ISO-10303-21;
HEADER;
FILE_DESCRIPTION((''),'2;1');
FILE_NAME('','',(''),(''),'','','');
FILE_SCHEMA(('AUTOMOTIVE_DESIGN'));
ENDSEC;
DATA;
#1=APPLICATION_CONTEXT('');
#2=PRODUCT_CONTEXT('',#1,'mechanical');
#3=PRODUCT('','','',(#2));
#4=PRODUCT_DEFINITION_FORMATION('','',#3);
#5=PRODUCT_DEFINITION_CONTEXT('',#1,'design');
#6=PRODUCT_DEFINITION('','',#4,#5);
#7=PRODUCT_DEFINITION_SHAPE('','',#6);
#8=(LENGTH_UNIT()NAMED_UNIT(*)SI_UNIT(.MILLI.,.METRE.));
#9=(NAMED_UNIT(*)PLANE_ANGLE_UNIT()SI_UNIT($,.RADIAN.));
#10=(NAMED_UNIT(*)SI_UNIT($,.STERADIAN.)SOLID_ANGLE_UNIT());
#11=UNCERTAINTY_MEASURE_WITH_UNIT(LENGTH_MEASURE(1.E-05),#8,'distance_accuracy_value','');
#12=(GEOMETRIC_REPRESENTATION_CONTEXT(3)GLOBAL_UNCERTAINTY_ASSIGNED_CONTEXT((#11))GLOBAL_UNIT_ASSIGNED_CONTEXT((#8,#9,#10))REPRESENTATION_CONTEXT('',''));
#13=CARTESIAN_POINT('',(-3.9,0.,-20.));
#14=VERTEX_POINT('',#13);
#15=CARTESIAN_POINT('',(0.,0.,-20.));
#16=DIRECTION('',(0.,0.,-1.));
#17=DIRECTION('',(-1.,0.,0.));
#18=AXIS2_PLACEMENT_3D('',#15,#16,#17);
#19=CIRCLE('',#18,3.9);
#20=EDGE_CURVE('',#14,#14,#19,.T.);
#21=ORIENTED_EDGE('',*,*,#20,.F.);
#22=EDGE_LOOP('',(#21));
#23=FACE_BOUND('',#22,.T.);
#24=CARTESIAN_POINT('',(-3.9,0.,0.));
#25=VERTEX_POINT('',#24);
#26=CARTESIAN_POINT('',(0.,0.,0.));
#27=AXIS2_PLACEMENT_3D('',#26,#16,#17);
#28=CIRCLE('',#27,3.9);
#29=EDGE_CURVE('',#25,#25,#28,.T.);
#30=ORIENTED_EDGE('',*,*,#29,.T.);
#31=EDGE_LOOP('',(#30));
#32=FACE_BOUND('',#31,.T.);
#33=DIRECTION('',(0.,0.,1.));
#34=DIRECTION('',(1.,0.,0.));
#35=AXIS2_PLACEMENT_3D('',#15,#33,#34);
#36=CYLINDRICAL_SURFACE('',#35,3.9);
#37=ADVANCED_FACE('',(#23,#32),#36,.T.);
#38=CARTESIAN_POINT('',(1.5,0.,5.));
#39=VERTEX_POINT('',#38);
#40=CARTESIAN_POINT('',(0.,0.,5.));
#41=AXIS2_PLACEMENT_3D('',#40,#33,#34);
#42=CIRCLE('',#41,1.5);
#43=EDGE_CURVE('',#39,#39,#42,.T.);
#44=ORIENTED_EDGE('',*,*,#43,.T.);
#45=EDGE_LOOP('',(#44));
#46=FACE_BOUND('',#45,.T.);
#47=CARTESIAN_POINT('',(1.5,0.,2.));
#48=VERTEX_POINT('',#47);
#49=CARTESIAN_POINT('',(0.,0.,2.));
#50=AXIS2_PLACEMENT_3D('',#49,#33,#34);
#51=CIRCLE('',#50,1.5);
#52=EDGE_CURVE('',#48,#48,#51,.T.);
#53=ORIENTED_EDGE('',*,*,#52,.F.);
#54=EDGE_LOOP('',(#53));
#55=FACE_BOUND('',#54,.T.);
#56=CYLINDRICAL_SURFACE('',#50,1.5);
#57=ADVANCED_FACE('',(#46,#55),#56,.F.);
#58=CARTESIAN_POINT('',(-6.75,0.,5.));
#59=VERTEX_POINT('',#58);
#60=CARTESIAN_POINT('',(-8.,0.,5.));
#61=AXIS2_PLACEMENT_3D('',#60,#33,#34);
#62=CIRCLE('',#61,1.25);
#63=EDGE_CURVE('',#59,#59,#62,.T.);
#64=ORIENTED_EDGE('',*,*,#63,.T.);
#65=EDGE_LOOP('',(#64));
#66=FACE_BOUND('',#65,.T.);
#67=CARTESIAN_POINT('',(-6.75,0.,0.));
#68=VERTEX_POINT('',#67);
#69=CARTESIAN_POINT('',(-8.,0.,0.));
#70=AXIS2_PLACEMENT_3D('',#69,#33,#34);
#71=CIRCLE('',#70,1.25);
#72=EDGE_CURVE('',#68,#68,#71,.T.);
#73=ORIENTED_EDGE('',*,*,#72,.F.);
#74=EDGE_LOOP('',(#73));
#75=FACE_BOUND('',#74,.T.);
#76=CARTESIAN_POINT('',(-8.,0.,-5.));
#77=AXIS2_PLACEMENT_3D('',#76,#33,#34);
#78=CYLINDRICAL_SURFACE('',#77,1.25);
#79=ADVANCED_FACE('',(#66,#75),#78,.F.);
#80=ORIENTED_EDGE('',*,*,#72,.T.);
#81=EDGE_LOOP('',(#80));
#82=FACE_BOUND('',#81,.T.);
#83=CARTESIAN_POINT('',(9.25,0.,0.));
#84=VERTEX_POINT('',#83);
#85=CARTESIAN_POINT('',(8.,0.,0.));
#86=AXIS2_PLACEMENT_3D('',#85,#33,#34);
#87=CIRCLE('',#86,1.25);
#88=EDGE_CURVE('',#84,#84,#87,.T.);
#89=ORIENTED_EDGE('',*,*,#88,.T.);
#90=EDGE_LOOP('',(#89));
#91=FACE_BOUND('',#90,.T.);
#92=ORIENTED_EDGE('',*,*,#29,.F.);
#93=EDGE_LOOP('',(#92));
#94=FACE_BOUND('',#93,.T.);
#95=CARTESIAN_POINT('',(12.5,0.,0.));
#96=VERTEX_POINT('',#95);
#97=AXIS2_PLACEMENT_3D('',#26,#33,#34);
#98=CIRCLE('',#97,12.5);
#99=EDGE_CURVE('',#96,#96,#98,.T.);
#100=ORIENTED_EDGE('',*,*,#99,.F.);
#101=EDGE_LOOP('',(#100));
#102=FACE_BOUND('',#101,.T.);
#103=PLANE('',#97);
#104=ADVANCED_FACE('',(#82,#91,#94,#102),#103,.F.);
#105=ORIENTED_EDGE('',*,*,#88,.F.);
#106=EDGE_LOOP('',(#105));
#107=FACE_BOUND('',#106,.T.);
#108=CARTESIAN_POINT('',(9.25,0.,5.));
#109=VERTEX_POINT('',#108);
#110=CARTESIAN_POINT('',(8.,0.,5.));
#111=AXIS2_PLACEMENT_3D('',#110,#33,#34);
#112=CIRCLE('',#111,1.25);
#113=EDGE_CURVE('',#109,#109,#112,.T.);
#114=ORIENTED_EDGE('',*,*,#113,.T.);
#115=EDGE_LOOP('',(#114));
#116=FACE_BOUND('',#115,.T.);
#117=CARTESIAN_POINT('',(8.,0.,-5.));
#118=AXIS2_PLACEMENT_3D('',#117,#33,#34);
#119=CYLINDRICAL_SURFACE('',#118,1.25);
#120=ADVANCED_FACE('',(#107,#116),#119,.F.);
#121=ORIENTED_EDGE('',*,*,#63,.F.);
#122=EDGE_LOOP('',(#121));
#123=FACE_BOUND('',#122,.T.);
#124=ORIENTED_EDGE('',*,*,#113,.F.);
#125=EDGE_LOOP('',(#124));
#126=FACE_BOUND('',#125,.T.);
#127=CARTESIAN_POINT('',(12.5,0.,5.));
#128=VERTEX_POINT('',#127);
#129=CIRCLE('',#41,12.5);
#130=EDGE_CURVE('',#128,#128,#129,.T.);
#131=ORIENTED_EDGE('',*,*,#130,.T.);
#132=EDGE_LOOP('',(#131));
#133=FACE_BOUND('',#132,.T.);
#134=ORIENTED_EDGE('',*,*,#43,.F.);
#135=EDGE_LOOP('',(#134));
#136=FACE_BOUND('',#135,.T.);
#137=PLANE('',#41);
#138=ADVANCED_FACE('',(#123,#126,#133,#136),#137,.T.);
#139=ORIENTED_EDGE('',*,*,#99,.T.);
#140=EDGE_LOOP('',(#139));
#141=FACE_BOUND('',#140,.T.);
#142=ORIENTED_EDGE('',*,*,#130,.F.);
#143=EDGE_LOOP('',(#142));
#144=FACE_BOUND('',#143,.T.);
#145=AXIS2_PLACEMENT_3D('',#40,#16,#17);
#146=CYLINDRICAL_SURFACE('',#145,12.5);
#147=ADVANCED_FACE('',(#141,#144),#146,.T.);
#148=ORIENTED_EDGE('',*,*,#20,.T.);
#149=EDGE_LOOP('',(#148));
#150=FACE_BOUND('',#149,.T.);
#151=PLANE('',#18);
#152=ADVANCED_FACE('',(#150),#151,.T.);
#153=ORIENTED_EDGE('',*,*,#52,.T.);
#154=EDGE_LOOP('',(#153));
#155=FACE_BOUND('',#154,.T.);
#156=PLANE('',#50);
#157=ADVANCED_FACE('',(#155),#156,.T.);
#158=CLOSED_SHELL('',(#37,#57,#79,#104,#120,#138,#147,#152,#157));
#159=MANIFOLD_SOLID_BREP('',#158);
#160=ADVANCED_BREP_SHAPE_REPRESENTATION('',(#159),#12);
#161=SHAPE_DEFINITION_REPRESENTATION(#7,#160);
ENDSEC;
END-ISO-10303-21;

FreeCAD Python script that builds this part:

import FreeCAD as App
import Part
import Sketcher

V = App.Vector
Q = App.Units.Quantity

doc = App.newDocument("Part")
params = doc.addObject("Spreadsheet::Sheet", "Params")
for row, (alias, value) in enumerate([
    ("sketch1_diameter", "25 mm"),
    ("pad1_length", "5 mm"),
    ("sketch2_diameter", "7.8 mm"),
    ("pad2_length", "20 mm"),
    ("sketch3_diameter", "3 mm"),
    ("pocket1_length", "3 mm"),
    ("sketch4_diameter", "2.5 mm"),
    ("pocket2_length", "10 mm"),
], start=1):
    params.set(f"A{row}", alias)
    params.set(f"B{row}", "=" + value)
    params.setAlias(f"B{row}", alias)

body = doc.addObject("PartDesign::Body", "Body")

sketch1 = body.newObject("Sketcher::SketchObject", "Sketch")
sketch1.AttachmentSupport = (doc.getObject("XY_Plane"), [""])
sketch1.MapMode = "FlatFace"
sketch1.addGeometry(Part.Circle(V(0, 0, 0), V(0, 0, 1), 12), False)
sketch1.addConstraint([
    Sketcher.Constraint("Coincident", 0, 3, -1, 1),
    Sketcher.Constraint("Diameter", 0, Q("25 mm")),
])
sketch1.setExpression("Constraints[1]", "Params.sketch1_diameter")
pad1 = body.newObject("PartDesign::Pad", "Pad")
pad1.Profile = sketch1
pad1.setExpression("Length", "Params.pad1_length")

sketch2 = body.newObject("Sketcher::SketchObject", "Sketch001")
sketch2.AttachmentSupport = (doc.getObject("XY_Plane"), [""])
sketch2.MapMode = "FlatFace"
sketch2.addGeometry(Part.Circle(V(0, 0, 0), V(0, 0, 1), 3.9), False)
sketch2.addConstraint([
    Sketcher.Constraint("Coincident", 0, 3, -1, 1),
    Sketcher.Constraint("Diameter", 0, Q("7.8 mm")),
])
sketch2.setExpression("Constraints[1]", "Params.sketch2_diameter")
pad2 = body.newObject("PartDesign::Pad", "Pad001")
pad2.Profile = sketch2
pad2.setExpression("Length", "Params.pad2_length")
pad2.Reversed = True

sketch3 = body.newObject("Sketcher::SketchObject", "Sketch002")
sketch3.AttachmentSupport = (doc.getObject("XY_Plane"), [""])
sketch3.MapMode = "FlatFace"
sketch3.AttachmentOffset = App.Placement(V(0, 0, 5), App.Rotation())
sketch3.addGeometry(Part.Circle(V(0, 0, 0), V(0, 0, 1), 1.5), False)
sketch3.addConstraint([
    Sketcher.Constraint("Coincident", 0, 3, -1, 1),
    Sketcher.Constraint("Diameter", 0, Q("3 mm")),
])
sketch3.setExpression("Constraints[1]", "Params.sketch3_diameter")
pocket1 = body.newObject("PartDesign::Pocket", "Pocket")
pocket1.Profile = sketch3
pocket1.setExpression("Length", "Params.pocket1_length")

sketch4 = body.newObject("Sketcher::SketchObject", "Sketch003")
sketch4.AttachmentSupport = (doc.getObject("XY_Plane"), [""])
sketch4.MapMode = "FlatFace"
sketch4.AttachmentOffset = App.Placement(V(0, 0, 5), App.Rotation())
sketch4.addGeometry([
    Part.Circle(V(8, 0, 0), V(0, 0, 1), 1.2),
    Part.Circle(V(-8, 0, 0), V(0, 0, 1), 1.2),
], False)
sketch4.addConstraint([
    Sketcher.Constraint("Equal", 0, 1),
    Sketcher.Constraint("Symmetric", 0, 3, 1, 3, -1, 1),
    Sketcher.Constraint("PointOnObject", 0, 3, -1),
    Sketcher.Constraint("Diameter", 0, Q("2.5 mm")),
    Sketcher.Constraint("DistanceX", -1, 1, 0, 3, Q("8 mm")),
])
sketch4.setExpression("Constraints[3]", "Params.sketch4_diameter")
pocket2 = body.newObject("PartDesign::Pocket", "Pocket001")
pocket2.Profile = sketch4
pocket2.setExpression("Length", "Params.pocket2_length")

doc.recompute()
